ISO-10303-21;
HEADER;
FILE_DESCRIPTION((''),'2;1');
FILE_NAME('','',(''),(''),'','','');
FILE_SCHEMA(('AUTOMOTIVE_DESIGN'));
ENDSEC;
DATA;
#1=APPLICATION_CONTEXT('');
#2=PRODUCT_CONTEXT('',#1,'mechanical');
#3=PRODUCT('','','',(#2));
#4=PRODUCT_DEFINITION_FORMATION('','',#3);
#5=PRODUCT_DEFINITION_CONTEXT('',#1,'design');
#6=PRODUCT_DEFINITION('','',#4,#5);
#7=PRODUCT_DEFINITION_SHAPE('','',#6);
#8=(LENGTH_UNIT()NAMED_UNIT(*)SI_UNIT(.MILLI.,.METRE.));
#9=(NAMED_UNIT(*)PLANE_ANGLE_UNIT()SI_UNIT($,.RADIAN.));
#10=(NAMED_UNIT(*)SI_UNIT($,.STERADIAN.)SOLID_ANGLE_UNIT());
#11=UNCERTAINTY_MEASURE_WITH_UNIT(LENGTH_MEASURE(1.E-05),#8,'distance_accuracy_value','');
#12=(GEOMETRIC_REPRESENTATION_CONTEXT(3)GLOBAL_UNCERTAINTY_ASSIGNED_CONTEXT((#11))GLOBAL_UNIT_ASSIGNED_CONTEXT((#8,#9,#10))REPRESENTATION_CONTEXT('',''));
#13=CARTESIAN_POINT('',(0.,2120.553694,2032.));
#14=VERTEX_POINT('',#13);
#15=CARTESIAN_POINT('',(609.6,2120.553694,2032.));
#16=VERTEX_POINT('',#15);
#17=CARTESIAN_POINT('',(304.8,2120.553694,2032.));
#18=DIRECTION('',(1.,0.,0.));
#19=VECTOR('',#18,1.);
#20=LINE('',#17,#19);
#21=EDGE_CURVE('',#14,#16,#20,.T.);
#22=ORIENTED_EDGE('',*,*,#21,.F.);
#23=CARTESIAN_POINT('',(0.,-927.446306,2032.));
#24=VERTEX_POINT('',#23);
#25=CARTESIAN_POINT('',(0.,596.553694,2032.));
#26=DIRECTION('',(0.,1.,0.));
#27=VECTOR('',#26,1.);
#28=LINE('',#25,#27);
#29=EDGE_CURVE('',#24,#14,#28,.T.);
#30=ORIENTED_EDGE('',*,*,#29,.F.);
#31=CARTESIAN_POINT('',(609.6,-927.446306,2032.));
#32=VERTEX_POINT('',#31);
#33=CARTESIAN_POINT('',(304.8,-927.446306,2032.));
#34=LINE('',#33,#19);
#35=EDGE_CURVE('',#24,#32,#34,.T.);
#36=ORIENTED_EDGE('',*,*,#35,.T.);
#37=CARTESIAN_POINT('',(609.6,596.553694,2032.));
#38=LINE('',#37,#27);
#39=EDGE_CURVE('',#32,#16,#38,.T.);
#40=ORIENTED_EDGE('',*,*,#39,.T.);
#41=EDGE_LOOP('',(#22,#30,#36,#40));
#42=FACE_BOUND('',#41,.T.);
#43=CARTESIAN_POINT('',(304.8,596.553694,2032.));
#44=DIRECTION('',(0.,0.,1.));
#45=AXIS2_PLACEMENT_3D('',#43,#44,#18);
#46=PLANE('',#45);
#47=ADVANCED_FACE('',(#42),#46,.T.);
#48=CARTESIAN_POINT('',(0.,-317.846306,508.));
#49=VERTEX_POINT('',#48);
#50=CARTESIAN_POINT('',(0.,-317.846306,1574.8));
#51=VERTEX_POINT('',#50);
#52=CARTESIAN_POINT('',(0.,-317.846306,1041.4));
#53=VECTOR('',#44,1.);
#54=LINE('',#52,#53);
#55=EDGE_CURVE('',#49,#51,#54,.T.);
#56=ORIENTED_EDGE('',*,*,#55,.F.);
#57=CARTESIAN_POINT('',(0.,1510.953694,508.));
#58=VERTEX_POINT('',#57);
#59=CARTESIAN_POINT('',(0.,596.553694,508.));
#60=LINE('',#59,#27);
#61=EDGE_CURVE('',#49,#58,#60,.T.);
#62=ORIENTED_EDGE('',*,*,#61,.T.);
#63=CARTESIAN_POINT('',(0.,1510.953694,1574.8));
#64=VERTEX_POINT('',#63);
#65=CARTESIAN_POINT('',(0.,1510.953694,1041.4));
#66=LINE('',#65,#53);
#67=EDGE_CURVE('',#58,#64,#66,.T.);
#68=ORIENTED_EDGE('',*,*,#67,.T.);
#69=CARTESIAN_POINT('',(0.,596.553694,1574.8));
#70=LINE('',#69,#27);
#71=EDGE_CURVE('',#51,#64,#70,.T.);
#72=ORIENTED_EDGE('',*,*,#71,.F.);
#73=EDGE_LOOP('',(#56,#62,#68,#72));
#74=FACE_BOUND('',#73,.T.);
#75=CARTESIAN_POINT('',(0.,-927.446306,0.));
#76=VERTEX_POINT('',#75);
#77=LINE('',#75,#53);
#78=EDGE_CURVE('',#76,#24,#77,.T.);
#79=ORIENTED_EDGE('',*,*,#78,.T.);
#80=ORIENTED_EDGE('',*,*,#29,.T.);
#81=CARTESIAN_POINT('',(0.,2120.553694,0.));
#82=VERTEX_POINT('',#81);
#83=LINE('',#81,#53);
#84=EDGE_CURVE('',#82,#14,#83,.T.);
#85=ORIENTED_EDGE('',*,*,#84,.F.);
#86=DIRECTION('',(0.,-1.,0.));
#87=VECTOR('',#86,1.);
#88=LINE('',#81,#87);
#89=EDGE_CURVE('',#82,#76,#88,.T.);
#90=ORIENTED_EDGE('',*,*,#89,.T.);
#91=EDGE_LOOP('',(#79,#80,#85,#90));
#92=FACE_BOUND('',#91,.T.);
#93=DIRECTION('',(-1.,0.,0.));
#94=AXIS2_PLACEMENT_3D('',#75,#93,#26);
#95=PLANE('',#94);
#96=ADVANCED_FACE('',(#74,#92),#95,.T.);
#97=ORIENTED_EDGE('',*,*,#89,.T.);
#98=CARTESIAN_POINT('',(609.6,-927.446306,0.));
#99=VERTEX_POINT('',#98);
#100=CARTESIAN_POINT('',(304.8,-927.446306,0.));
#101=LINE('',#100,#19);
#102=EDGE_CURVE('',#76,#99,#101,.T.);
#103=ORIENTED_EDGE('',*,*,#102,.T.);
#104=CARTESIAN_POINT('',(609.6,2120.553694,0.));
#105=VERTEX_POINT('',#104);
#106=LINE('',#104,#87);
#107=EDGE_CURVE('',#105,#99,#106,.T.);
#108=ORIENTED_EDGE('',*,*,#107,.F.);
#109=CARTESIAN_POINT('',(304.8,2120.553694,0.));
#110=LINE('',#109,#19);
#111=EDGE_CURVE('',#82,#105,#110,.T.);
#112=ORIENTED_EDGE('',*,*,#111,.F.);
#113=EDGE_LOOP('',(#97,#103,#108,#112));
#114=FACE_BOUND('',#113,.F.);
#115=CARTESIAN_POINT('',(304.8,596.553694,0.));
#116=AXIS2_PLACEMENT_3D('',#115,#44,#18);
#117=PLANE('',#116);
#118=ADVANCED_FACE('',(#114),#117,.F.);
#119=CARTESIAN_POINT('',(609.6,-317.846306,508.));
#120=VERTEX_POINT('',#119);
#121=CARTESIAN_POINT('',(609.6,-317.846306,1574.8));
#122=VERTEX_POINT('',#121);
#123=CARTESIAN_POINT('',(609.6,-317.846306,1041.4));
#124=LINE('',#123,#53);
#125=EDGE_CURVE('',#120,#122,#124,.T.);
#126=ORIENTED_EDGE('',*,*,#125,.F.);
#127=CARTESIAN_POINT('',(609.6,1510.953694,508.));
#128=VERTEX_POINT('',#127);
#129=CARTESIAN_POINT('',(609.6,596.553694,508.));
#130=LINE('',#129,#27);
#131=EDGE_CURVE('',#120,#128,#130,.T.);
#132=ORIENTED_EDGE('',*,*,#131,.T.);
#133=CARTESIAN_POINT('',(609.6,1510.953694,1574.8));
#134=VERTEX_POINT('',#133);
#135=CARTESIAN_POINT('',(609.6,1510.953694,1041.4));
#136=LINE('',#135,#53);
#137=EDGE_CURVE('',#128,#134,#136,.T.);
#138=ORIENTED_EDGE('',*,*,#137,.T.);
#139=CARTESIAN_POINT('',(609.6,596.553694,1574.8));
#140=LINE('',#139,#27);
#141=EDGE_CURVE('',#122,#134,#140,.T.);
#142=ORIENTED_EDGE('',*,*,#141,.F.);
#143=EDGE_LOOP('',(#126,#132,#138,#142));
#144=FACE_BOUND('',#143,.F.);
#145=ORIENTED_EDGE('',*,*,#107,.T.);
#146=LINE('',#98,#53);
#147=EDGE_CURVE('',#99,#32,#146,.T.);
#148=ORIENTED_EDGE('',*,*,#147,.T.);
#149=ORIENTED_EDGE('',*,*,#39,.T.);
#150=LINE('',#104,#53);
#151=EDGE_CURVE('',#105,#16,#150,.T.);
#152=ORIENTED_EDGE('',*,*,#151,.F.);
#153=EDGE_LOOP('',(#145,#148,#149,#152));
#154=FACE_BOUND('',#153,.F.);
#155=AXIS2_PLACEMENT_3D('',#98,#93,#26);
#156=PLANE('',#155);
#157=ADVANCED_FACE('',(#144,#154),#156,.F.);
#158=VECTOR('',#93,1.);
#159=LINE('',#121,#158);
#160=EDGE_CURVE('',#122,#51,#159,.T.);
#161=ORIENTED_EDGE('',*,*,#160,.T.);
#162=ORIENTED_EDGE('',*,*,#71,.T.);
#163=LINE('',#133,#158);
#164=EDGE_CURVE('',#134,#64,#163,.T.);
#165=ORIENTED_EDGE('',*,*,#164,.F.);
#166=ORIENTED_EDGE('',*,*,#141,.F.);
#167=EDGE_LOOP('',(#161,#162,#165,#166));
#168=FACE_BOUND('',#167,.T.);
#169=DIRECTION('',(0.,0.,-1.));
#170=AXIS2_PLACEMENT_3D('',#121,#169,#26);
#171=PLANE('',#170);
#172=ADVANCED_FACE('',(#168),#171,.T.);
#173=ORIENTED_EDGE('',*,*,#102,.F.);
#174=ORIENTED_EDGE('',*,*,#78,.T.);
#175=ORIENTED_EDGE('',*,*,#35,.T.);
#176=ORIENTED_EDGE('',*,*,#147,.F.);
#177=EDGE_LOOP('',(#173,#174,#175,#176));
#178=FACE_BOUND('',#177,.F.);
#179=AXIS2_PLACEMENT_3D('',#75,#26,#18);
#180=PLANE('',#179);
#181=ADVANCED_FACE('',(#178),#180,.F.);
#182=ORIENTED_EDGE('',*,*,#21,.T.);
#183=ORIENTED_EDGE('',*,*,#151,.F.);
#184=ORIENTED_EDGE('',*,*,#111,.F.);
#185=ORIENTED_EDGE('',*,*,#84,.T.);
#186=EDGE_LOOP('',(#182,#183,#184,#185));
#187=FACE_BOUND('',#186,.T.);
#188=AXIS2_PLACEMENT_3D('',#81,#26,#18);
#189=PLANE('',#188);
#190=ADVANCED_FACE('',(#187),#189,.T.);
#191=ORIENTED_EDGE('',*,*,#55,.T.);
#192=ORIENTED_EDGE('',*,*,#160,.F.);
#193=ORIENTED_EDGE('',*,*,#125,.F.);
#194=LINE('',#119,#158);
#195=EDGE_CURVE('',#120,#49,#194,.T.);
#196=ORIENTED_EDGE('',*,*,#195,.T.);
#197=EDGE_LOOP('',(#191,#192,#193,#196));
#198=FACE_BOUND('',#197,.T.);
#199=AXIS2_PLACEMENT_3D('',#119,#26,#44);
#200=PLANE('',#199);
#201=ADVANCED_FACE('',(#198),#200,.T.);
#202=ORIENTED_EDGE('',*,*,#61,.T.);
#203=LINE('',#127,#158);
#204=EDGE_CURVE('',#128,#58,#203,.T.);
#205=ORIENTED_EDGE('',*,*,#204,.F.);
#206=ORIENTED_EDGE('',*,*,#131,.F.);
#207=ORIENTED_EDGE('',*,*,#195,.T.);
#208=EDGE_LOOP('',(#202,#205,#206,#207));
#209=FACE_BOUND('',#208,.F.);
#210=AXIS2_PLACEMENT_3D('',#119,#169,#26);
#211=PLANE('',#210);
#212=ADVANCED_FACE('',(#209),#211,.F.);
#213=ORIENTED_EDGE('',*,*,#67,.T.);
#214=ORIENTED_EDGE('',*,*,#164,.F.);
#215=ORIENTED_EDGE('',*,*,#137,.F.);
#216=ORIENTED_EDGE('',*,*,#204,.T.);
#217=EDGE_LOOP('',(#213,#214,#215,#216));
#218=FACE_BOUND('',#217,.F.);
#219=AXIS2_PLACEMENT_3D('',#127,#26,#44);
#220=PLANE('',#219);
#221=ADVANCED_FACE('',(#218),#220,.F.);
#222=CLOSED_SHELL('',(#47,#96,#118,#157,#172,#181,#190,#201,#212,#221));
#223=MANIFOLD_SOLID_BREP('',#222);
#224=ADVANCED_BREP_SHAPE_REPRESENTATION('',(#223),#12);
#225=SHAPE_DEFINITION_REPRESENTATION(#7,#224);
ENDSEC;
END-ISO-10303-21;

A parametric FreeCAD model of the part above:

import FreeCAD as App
import Part
import Sketcher
from FreeCAD import Vector
Q = App.Units.Quantity


def add_polygon(sketch, points):
    """Adds a closed chain of lines whose ends are joined by coincident constraints."""
    first, n = sketch.GeometryCount, len(points)
    for a, b in zip(points, points[1:] + points[:1]):
        sketch.addGeometry(Part.LineSegment(App.Vector(*a, 0), App.Vector(*b, 0)), False)
    for i in range(n):
        sketch.addConstraint(Sketcher.Constraint("Coincident", first + i, 2, first + (i + 1) % n, 1))

doc = App.newDocument("Part")
body = doc.addObject("PartDesign::Body", "Body")

sketch1 = body.newObject("Sketcher::SketchObject", "Sketch")
sketch1.AttachmentSupport = (doc.getObject("XY_Plane"), [""])
sketch1.MapMode = "FlatFace"
add_polygon(sketch1, [(0, 1511), (0, -318), (610, -318), (610, 1511)])
sketch1.addConstraint([
    Sketcher.Constraint("Vertical", 0),
    Sketcher.Constraint("Horizontal", 1),
    Sketcher.Constraint("Vertical", 2),
    Sketcher.Constraint("Horizontal", 3),
    Sketcher.Constraint("PointOnObject", 0, 2, -2),
    Sketcher.Constraint("DistanceX", 1, 1, 1, 2, Q("24 in")),
    Sketcher.Constraint("DistanceY", 0, 2, 0, 1, Q("72 in")),
    Sketcher.Constraint("DistanceY", 0, 2, -1, 1, Q("317.846306 mm")),
])
pad1 = body.newObject("PartDesign::Pad", "Pad")
pad1.Profile = sketch1
pad1.Length = Q("20 in")

sketch2 = body.newObject("Sketcher::SketchObject", "Sketch001")
sketch2.AttachmentSupport = (doc.getObject("XY_Plane"), [""])
sketch2.MapMode = "FlatFace"
add_polygon(sketch2, [(0, 2121), (0, -927), (610, -927), (610, 2121)])
sketch2.addConstraint([
    Sketcher.Constraint("Vertical", 0),
    Sketcher.Constraint("Horizontal", 1),
    Sketcher.Constraint("Vertical", 2),
    Sketcher.Constraint("Horizontal", 3),
    Sketcher.Constraint("PointOnObject", 0, 2, -2),
    Sketcher.Constraint("DistanceX", 1, 1, 1, 2, Q("24 in")),
    Sketcher.Constraint("DistanceY", 0, 2, 0, 1, Q("120 in")),
    Sketcher.Constraint("DistanceY", 0, 2, -1, 1, Q("927.446306 mm")),
])
pad2 = body.newObject("PartDesign::Pad", "Pad001")
pad2.Profile = sketch2
pad2.Length = Q("80 in")

sketch3 = body.newObject("Sketcher::SketchObject", "Sketch002")
sketch3.AttachmentSupport = (doc.getObject("YZ_Plane"), [""])
sketch3.MapMode = "FlatFace"
sketch3.AttachmentOffset = App.Placement(Vector(0, 0, 24 * 25.4), App.Rotation())
add_polygon(sketch3, [(-318, 1575), (-318, 508), (1511, 508), (1511, 1575)])
sketch3.addConstraint([
    Sketcher.Constraint("Vertical", 0),
    Sketcher.Constraint("Horizontal", 1),
    Sketcher.Constraint("Vertical", 2),
    Sketcher.Constraint("Horizontal", 3),
    Sketcher.Constraint("DistanceX", 1, 1, 1, 2, Q("72 in")),
    Sketcher.Constraint("DistanceY", 0, 2, 0, 1, Q("42 in")),
    Sketcher.Constraint("DistanceY", -1, 1, 0, 2, Q("20 in")),
    Sketcher.Constraint("DistanceX", 0, 2, -1, 1, Q("317.846306 mm")),
])
pocket1 = body.newObject("PartDesign::Pocket", "Pocket")
pocket1.Profile = sketch3
pocket1.Type = "ThroughAll"

doc.recompute()
